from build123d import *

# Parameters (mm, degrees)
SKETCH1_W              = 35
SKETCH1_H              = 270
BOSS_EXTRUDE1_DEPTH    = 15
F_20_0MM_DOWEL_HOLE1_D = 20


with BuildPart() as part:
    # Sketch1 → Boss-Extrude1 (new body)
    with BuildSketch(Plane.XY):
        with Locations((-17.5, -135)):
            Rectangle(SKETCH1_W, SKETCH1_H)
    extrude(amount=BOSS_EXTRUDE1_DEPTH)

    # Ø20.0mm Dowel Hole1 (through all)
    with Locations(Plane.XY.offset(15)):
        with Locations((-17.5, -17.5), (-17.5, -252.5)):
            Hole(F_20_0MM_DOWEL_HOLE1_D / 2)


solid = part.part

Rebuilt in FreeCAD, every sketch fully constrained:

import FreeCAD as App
import Part
import Sketcher
from FreeCAD import Vector
Q = App.Units.Quantity


def add_polygon(sketch, points):
    """Adds a closed chain of lines whose ends are joined by coincident constraints."""
    first, n = sketch.GeometryCount, len(points)
    for a, b in zip(points, points[1:] + points[:1]):
        sketch.addGeometry(Part.LineSegment(App.Vector(*a, 0), App.Vector(*b, 0)), False)
    for i in range(n):
        sketch.addConstraint(Sketcher.Constraint("Coincident", first + i, 2, first + (i + 1) % n, 1))

doc = App.newDocument("Part")
body = doc.addObject("PartDesign::Body", "Body")

# Sketch on XY plane
sketch1 = body.newObject("Sketcher::SketchObject", "Sketch")
sketch1.AttachmentSupport = (doc.getObject("XY_Plane"), [""])
sketch1.MapMode = "FlatFace"
add_polygon(sketch1, [(-35, 0), (-35, -270), (0, -270), (0, 0)])  # lines 0-3
sketch1.addConstraint(Sketcher.Constraint("Vertical", 0))
sketch1.addConstraint(Sketcher.Constraint("Horizontal", 1))
sketch1.addConstraint(Sketcher.Constraint("Vertical", 2))
sketch1.addConstraint(Sketcher.Constraint("Horizontal", 3))
sketch1.addConstraint(Sketcher.Constraint("Coincident", 2, 2, -1, 1))
sketch1.addConstraint(Sketcher.Constraint("DistanceX", 1, 1, 1, 2, Q("35 mm")))
sketch1.addConstraint(Sketcher.Constraint("DistanceY", 0, 2, 0, 1, Q("270 mm")))
pad1 = body.newObject("PartDesign::Pad", "Pad")
pad1.Profile = sketch1
pad1.Length = 15

# Sketch on XY plane
sketch2 = body.newObject("Sketcher::SketchObject", "Sketch001")
sketch2.AttachmentSupport = (doc.getObject("XY_Plane"), [""])
sketch2.MapMode = "FlatFace"
sketch2.AttachmentOffset = App.Placement(Vector(0, 0, 15), App.Rotation())
sketch2.addGeometry(Part.Circle(Vector(-18, -18, 0), Vector(0, 0, 1), 10), False)
sketch2.addGeometry(Part.Circle(Vector(-18, -252, 0), Vector(0, 0, 1), 10), False)
sketch2.addConstraint(Sketcher.Constraint("Equal", 0, 1))
sketch2.addConstraint(Sketcher.Constraint("Vertical", 0, 3, 1, 3))
sketch2.addConstraint(Sketcher.Constraint("Diameter", 0, Q("20 mm")))
sketch2.addConstraint(Sketcher.Constraint("DistanceY", 1, 3, 0, 3, Q("235 mm")))
sketch2.addConstraint(Sketcher.Constraint("DistanceX", 0, 3, -1, 1, Q("17.5 mm")))
sketch2.addConstraint(Sketcher.Constraint("DistanceY", 0, 3, -1, 1, Q("17.5 mm")))
doc.recompute()
hole = body.newObject("PartDesign::Hole", "Hole")
hole.Profile = sketch2
hole.ThreadType = "None"
hole.Diameter = 20
hole.DepthType = "ThroughAll"

doc.recompute()
